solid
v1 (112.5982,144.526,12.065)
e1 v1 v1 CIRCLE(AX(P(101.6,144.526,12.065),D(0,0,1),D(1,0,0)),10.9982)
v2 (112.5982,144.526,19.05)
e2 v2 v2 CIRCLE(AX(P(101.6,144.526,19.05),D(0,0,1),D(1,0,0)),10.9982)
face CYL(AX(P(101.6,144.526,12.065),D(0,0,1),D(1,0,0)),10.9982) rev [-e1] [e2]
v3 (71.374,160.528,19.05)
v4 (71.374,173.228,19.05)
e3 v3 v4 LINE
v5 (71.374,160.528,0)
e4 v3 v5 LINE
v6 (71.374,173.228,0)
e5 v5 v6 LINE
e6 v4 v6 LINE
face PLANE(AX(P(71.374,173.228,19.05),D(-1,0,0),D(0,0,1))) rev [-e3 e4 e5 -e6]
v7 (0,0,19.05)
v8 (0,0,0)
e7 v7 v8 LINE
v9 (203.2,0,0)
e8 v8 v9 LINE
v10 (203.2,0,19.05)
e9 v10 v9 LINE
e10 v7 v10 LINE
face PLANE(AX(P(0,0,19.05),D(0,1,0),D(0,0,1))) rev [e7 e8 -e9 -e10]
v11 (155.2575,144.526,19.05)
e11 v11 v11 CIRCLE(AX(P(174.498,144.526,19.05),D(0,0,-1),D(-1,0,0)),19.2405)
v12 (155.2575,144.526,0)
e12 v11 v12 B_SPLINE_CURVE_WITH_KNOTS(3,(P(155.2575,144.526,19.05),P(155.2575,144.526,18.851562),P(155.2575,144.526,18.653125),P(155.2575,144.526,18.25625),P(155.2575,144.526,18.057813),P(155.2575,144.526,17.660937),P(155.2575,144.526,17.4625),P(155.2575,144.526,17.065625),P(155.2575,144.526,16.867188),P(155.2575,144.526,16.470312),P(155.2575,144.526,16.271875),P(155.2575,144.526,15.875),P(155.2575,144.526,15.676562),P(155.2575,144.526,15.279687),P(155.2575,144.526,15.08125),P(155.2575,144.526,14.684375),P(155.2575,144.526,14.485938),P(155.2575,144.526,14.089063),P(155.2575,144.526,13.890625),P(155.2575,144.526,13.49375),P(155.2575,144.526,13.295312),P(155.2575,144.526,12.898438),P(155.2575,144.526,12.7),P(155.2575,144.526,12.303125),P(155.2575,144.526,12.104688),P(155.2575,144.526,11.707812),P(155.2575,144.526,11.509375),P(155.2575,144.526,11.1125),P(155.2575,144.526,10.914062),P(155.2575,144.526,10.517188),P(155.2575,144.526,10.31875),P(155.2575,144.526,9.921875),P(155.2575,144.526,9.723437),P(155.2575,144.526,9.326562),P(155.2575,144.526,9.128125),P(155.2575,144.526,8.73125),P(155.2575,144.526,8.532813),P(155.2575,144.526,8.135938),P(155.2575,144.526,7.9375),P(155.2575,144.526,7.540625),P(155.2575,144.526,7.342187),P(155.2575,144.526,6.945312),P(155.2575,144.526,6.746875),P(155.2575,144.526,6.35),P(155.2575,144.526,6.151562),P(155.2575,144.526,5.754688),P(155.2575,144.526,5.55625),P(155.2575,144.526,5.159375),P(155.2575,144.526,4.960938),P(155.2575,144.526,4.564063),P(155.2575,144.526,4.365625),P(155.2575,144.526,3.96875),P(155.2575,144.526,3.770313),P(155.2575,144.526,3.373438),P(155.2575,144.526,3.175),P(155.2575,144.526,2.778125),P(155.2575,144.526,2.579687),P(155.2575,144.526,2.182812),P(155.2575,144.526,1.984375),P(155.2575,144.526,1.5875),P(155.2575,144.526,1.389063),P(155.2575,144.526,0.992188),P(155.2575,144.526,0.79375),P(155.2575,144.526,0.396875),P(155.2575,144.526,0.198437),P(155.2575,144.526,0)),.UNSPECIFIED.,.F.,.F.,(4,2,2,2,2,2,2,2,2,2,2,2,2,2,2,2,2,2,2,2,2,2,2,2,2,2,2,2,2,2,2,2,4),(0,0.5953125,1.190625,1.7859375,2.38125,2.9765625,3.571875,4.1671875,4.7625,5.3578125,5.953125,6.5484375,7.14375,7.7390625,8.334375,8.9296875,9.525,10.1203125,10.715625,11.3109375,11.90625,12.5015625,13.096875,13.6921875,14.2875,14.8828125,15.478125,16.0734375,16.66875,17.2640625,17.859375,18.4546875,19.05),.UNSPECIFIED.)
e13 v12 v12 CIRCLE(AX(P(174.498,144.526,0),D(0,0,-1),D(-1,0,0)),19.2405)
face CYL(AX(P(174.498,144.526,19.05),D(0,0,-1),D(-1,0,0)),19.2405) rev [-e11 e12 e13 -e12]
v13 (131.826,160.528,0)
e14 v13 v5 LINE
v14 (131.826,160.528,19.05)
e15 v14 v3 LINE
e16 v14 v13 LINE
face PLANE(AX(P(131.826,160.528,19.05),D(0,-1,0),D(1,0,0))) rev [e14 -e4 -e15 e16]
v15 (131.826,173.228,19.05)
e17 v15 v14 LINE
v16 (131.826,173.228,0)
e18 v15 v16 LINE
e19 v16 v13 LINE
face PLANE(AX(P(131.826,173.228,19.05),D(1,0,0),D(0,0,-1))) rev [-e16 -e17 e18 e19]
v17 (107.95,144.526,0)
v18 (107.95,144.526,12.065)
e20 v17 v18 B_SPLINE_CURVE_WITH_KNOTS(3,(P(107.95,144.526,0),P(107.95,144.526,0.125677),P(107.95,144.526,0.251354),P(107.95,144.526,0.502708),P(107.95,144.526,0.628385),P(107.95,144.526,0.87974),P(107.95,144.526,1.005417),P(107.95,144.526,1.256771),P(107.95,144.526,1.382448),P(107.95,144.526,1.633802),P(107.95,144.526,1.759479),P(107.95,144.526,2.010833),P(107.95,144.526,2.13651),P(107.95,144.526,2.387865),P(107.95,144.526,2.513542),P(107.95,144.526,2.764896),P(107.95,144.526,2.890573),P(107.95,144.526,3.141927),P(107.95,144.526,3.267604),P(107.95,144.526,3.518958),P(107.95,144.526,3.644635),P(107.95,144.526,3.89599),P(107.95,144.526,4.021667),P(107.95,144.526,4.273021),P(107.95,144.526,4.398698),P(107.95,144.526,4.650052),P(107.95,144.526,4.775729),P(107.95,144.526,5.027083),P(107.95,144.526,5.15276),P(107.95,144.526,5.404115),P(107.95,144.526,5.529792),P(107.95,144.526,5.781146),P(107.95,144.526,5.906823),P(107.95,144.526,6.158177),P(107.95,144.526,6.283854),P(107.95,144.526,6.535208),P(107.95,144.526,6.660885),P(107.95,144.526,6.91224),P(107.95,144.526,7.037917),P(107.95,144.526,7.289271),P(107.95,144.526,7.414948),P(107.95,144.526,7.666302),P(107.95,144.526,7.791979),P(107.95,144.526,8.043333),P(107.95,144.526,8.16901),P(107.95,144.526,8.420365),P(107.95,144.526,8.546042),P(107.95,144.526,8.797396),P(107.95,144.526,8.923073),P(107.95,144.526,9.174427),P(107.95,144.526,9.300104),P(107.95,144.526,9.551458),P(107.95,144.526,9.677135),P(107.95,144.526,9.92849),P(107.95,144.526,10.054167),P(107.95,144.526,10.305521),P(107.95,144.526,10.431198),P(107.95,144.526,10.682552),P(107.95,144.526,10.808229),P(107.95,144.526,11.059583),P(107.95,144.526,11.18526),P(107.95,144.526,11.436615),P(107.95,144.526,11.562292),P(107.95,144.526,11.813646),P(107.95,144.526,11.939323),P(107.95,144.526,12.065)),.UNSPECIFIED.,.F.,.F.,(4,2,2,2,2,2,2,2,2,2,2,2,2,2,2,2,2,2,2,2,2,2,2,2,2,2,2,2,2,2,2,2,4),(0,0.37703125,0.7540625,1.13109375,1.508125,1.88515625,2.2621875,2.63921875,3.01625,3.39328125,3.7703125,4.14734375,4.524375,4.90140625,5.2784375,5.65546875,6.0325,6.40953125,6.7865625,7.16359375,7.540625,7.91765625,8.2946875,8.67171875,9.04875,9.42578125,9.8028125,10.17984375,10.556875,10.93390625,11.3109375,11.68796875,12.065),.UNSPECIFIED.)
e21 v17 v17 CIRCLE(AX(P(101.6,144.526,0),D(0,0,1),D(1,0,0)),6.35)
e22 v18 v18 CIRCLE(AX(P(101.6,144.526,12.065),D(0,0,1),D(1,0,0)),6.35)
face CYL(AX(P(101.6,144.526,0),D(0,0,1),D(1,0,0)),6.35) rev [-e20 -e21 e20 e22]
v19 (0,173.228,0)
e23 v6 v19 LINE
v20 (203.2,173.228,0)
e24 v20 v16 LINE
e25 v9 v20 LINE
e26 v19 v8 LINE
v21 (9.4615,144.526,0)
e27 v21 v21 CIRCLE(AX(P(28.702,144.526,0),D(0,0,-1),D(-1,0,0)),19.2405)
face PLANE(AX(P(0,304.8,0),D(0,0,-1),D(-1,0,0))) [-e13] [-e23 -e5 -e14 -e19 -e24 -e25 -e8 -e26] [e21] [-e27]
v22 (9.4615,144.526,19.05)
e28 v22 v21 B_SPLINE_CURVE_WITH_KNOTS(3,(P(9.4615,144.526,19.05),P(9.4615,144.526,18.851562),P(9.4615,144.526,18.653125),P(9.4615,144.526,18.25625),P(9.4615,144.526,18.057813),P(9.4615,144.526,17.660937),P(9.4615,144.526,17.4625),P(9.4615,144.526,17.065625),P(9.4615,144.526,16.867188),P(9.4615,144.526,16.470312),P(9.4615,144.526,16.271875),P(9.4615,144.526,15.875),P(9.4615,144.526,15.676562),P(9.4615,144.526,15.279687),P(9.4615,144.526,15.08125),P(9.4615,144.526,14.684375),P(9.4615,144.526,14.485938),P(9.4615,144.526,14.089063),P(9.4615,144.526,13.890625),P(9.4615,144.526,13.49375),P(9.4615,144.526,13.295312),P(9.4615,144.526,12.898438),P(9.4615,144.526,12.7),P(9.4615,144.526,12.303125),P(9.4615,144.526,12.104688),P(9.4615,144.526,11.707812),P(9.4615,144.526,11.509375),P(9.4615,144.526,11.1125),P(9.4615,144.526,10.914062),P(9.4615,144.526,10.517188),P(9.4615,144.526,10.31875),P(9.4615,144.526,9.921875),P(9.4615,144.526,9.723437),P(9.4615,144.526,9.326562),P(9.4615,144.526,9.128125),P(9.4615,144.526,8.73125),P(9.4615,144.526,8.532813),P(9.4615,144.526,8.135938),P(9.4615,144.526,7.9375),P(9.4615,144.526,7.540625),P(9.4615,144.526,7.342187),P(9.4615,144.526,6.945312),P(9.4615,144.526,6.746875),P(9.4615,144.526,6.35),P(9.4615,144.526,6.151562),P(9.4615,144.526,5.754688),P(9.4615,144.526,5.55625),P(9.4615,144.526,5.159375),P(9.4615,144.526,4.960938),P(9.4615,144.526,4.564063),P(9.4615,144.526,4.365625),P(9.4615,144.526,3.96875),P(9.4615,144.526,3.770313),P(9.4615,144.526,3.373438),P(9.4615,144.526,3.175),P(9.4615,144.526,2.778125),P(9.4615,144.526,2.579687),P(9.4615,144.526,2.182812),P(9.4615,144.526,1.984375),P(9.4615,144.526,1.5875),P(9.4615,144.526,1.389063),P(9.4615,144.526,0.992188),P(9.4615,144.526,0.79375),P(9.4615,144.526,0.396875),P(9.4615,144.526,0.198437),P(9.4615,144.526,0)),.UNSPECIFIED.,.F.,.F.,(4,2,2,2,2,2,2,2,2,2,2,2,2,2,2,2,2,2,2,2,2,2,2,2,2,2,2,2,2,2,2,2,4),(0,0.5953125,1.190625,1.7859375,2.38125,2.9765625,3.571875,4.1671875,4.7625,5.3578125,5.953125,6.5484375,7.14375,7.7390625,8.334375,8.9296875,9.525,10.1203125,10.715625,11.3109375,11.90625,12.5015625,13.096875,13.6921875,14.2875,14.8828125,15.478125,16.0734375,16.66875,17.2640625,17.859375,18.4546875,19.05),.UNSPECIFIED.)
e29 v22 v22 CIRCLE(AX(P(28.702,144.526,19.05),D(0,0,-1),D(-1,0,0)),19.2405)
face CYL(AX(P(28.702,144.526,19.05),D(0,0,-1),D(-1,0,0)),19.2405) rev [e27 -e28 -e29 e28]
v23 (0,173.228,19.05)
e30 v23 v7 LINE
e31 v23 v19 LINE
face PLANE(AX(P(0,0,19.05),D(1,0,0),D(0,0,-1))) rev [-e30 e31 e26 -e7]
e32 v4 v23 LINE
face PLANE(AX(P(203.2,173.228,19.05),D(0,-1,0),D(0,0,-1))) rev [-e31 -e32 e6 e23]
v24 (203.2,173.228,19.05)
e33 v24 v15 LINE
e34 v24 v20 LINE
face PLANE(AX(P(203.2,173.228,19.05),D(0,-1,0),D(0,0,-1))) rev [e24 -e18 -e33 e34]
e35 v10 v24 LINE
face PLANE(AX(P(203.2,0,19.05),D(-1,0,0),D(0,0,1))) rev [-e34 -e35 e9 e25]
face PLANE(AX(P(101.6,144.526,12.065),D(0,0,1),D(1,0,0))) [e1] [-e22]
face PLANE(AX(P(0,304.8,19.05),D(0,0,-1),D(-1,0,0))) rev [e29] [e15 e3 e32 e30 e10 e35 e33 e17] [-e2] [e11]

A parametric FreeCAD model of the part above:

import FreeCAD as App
import Part
import Sketcher
Q = App.Units.Quantity


def add_polygon(sketch, points):
    """Adds a closed chain of lines whose ends are joined by coincident constraints."""
    first, n = sketch.GeometryCount, len(points)
    for a, b in zip(points, points[1:] + points[:1]):
        sketch.addGeometry(Part.LineSegment(App.Vector(*a, 0), App.Vector(*b, 0)), False)
    for i in range(n):
        sketch.addConstraint(Sketcher.Constraint("Coincident", first + i, 2, first + (i + 1) % n, 1))

doc = App.newDocument("Part")
body = doc.addObject("PartDesign::Body", "Body")

# Sketch on XY plane
sketch1 = body.newObject("Sketcher::SketchObject", "Sketch")
sketch1.AttachmentSupport = (doc.getObject("XY_Plane"), [""])
sketch1.MapMode = "FlatFace"
add_polygon(sketch1, [(0, 305), (0, 0), (203, 0), (203, 305)])  # lines 0-3
sketch1.addConstraint([
    Sketcher.Constraint("Vertical", 0),
    Sketcher.Constraint("Horizontal", 1),
    Sketcher.Constraint("Vertical", 2),
    Sketcher.Constraint("Horizontal", 3),
    Sketcher.Constraint("Coincident", 0, 2, -1, 1),
    Sketcher.Constraint("DistanceX", 1, 1, 1, 2, Q("8 in")),
    Sketcher.Constraint("DistanceY", 0, 2, 0, 1, Q("12 in")),
])
pad1 = body.newObject("PartDesign::Pad", "Pad")
pad1.Profile = sketch1
pad1.Length = Q("0.75 in")

# Sketch on XY plane
sketch2 = body.newObject("Sketcher::SketchObject", "Sketch001")
sketch2.AttachmentSupport = (doc.getObject("XY_Plane"), [""])
sketch2.MapMode = "FlatFace"
add_polygon(sketch2, [(203, 305), (203, 267), (0, 267), (0, 305)])  # lines 0-3
sketch2.addConstraint([
    Sketcher.Constraint("Vertical", 0),
    Sketcher.Constraint("Horizontal", 1),
    Sketcher.Constraint("Vertical", 2),
    Sketcher.Constraint("Horizontal", 3),
    Sketcher.Constraint("PointOnObject", 1, 2, -2),
    Sketcher.Constraint("DistanceX", 1, 2, 1, 1, Q("8 in")),
    Sketcher.Constraint("DistanceY", 0, 2, 0, 1, Q("1.5 in")),
    Sketcher.Constraint("DistanceY", -1, 1, 2, 2, Q("12 in")),
])
pocket1 = body.newObject("PartDesign::Pocket", "Pocket")
pocket1.Profile = sketch2
pocket1.Type = "ThroughAll"
pocket1.Reversed = True

# Sketch on XY plane
sketch3 = body.newObject("Sketcher::SketchObject", "Sketch002")
sketch3.AttachmentSupport = (doc.getObject("XY_Plane"), [""])
sketch3.MapMode = "FlatFace"
add_polygon(sketch3, [(203, 267), (203, 173), (0, 173), (0, 267)])  # lines 0-3
sketch3.addConstraint([
    Sketcher.Constraint("Vertical", 0),
    Sketcher.Constraint("Horizontal", 1),
    Sketcher.Constraint("Vertical", 2),
    Sketcher.Constraint("Horizontal", 3),
    Sketcher.Constraint("PointOnObject", 1, 2, -2),
    Sketcher.Constraint("DistanceX", 1, 2, 1, 1, Q("8 in")),
    Sketcher.Constraint("DistanceY", 0, 2, 0, 1, Q("3.68 in")),
    Sketcher.Constraint("DistanceY", -1, 1, 2, 2, Q("10.5 in")),
])
pocket2 = body.newObject("PartDesign::Pocket", "Pocket001")
pocket2.Profile = sketch3
pocket2.Type = "ThroughAll"
pocket2.Reversed = True

# Sketch on XY plane
sketch4 = body.newObject("Sketcher::SketchObject", "Sketch003")
sketch4.AttachmentSupport = (doc.getObject("XY_Plane"), [""])
sketch4.MapMode = "FlatFace"
sketch4.addGeometry([
    Part.Circle(App.Vector(174, 145, 0), App.Vector(0, 0, 1), 19),
    Part.Circle(App.Vector(29, 145, 0), App.Vector(0, 0, 1), 19),
], False)
sketch4.addConstraint([
    Sketcher.Constraint("Equal", 0, 1),
    Sketcher.Constraint("Horizontal", 0, 3, 1, 3),
    Sketcher.Constraint("Diameter", 0, Q("1.515 in")),
    Sketcher.Constraint("DistanceX", -1, 1, 0, 3, Q("6.87 in")),
    Sketcher.Constraint("DistanceY", -1, 1, 0, 3, Q("5.69 in")),
    Sketcher.Constraint("DistanceX", -1, 1, 1, 3, Q("1.13 in")),
])
pocket3 = body.newObject("PartDesign::Pocket", "Pocket002")
pocket3.Profile = sketch4
pocket3.Type = "ThroughAll"
pocket3.Reversed = True

# Sketch on XY plane
sketch5 = body.newObject("Sketcher::SketchObject", "Sketch004")
sketch5.AttachmentSupport = (doc.getObject("XY_Plane"), [""])
sketch5.MapMode = "FlatFace"
sketch5.AttachmentOffset = App.Placement(App.Vector(0, 0, 0.75 * 25.4), App.Rotation())
sketch5.addGeometry(Part.Circle(App.Vector(102, 145, 0), App.Vector(0, 0, 1), 11), False)
sketch5.addConstraint([
    Sketcher.Constraint("Diameter", 0, Q("0.866 in")),
    Sketcher.Constraint("DistanceX", -1, 1, 0, 3, Q("4 in")),
    Sketcher.Constraint("DistanceY", -1, 1, 0, 3, Q("5.69 in")),
])
pocket4 = body.newObject("PartDesign::Pocket", "Pocket003")
pocket4.Profile = sketch5
pocket4.Length = Q("0.275 in")

# Sketch on XY plane
sketch6 = body.newObject("Sketcher::SketchObject", "Sketch005")
sketch6.AttachmentSupport = (doc.getObject("XY_Plane"), [""])
sketch6.MapMode = "FlatFace"
sketch6.AttachmentOffset = App.Placement(App.Vector(0, 0, 0.475 * 25.4), App.Rotation())
sketch6.addGeometry(Part.Circle(App.Vector(102, 145, 0), App.Vector(0, 0, 1), 6), False)
sketch6.addConstraint([
    Sketcher.Constraint("Diameter", 0, Q("0.5 in")),
    Sketcher.Constraint("DistanceX", -1, 1, 0, 3, Q("4 in")),
    Sketcher.Constraint("DistanceY", -1, 1, 0, 3, Q("5.69 in")),
])
pocket5 = body.newObject("PartDesign::Pocket", "Pocket004")
pocket5.Profile = sketch6
pocket5.Type = "ThroughAll"

# Sketch on XY plane
sketch7 = body.newObject("Sketcher::SketchObject", "Sketch006")
sketch7.AttachmentSupport = (doc.getObject("XY_Plane"), [""])
sketch7.MapMode = "FlatFace"
add_polygon(sketch7, [(132, 173), (132, 161), (71, 161), (71, 173)])  # lines 0-3
sketch7.addConstraint([
    Sketcher.Constraint("Vertical", 0),
    Sketcher.Constraint("Horizontal", 1),
    Sketcher.Constraint("Vertical", 2),
    Sketcher.Constraint("Horizontal", 3),
    Sketcher.Constraint("DistanceY", 0, 2, 0, 1, Q("0.5 in")),
    Sketcher.Constraint("DistanceX", 1, 2, 1, 1, Q("2.38 in")),
    Sketcher.Constraint("DistanceX", -1, 1, 0, 2, Q("5.19 in")),
    Sketcher.Constraint("DistanceY", -1, 1, 0, 2, Q("6.32 in")),
])
pocket6 = body.newObject("PartDesign::Pocket", "Pocket005")
pocket6.Profile = sketch7
pocket6.Length = Q("0.75 in")
pocket6.Reversed = True

doc.recompute()
